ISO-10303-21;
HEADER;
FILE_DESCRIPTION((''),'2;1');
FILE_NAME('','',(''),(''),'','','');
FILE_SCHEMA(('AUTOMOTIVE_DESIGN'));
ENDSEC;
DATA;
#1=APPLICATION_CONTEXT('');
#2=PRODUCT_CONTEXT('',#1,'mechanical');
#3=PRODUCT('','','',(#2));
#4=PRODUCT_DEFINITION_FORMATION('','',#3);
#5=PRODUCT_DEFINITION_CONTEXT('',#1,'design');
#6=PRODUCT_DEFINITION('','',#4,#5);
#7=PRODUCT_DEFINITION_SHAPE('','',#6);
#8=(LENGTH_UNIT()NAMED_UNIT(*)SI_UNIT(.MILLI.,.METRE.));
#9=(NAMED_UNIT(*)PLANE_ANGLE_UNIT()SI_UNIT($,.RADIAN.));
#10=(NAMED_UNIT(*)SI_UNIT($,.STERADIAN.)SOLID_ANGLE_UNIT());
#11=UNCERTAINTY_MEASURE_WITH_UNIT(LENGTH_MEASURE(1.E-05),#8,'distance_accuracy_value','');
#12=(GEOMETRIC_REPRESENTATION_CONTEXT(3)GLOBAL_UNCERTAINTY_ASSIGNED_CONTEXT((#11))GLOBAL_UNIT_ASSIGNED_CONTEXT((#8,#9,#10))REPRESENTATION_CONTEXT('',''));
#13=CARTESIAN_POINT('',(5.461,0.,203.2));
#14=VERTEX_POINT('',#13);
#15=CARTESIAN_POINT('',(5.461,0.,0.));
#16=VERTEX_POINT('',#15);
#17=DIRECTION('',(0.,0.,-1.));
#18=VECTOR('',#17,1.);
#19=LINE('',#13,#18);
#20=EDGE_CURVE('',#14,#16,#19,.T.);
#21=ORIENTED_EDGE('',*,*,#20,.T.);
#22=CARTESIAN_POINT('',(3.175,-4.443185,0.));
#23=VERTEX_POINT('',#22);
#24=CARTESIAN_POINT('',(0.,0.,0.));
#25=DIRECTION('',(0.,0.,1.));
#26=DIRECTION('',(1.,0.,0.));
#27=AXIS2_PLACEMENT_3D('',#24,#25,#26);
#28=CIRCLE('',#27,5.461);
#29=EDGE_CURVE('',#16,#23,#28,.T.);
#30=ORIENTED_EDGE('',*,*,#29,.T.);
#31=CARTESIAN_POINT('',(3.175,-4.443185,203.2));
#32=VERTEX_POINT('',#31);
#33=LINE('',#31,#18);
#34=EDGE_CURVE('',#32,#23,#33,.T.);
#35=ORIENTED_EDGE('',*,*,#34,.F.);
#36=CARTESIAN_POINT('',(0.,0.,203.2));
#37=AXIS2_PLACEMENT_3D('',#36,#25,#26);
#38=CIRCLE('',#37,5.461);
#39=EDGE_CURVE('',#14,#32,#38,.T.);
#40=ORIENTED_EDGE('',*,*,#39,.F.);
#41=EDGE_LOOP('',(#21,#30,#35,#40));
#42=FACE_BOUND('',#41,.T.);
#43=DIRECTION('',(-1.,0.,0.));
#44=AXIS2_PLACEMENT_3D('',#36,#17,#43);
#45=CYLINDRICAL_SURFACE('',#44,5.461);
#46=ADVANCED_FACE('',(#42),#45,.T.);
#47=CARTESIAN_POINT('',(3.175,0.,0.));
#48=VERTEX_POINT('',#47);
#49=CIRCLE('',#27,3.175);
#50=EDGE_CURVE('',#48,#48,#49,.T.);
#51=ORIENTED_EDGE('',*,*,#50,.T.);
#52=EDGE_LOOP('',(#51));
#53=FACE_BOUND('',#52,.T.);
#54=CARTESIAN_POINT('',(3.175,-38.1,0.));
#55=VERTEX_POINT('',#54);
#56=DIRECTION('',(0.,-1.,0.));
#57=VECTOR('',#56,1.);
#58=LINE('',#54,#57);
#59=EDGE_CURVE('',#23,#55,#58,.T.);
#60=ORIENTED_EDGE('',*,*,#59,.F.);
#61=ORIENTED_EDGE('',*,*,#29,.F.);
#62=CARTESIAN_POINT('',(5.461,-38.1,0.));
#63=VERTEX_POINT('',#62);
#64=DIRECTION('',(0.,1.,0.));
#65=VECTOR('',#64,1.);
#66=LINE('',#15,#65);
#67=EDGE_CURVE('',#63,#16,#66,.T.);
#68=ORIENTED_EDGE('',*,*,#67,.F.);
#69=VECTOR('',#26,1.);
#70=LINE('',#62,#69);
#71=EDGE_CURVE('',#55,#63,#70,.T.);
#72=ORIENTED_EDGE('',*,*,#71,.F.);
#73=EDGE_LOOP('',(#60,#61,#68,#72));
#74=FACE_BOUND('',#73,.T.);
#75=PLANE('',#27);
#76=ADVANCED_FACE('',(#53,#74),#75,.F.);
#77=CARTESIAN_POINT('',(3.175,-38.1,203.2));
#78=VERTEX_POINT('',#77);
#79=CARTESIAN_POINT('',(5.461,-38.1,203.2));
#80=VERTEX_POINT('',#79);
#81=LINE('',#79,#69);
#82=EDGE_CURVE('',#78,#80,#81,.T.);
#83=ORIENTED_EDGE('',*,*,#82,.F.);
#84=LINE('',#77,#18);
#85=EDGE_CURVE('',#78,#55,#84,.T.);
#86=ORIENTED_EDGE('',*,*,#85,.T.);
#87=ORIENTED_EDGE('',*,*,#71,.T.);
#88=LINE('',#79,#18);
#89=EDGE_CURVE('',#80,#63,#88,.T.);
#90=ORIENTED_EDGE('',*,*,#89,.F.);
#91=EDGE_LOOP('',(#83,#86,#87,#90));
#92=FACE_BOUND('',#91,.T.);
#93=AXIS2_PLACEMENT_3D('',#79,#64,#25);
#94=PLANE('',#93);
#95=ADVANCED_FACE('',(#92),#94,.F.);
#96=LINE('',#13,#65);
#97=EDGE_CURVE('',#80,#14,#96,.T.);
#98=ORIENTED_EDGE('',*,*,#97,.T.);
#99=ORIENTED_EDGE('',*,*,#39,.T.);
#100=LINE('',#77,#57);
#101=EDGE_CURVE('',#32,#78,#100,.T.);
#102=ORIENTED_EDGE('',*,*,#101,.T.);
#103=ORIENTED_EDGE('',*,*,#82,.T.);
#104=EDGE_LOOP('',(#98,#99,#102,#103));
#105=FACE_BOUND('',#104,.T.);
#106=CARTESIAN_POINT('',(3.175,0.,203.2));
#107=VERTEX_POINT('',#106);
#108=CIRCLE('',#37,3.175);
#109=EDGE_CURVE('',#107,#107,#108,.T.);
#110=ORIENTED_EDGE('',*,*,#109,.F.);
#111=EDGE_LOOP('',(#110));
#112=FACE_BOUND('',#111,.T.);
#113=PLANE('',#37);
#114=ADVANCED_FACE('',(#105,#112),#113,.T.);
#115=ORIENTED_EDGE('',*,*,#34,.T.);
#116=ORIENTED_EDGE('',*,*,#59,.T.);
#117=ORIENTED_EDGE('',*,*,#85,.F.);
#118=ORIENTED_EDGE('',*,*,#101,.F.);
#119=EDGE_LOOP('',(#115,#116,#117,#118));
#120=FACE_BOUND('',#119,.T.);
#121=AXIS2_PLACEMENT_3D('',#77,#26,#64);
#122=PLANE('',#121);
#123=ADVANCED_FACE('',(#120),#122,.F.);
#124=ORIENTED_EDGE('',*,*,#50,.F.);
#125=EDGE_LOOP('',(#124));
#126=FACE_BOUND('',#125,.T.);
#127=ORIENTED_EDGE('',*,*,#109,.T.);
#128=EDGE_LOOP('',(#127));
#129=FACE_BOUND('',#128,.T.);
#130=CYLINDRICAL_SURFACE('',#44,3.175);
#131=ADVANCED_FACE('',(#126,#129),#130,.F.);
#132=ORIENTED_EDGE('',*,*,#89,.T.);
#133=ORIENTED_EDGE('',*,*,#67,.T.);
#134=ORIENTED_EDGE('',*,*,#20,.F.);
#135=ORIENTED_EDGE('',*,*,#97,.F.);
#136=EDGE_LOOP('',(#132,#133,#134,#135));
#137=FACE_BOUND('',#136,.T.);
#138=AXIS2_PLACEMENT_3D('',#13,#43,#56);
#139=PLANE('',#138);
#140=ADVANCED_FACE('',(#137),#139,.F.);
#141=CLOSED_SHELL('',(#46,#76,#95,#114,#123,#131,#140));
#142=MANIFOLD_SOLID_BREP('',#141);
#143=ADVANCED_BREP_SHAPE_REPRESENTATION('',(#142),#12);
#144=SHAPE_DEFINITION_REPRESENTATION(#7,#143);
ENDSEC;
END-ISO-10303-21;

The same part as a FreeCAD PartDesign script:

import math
import FreeCAD as App
import Part
import Sketcher
Q = App.Units.Quantity

doc = App.newDocument("Part")
body = doc.addObject("PartDesign::Body", "Body")

# Sketch on XY plane
sketch1 = doc.addObject("Sketcher::SketchObject", "Sketch")
body.addObject(sketch1)
sketch1.AttachmentSupport = (doc.XY_Plane, [""])
sketch1.MapMode = "FlatFace"
sketch1.addGeometry([
    Part.LineSegment(App.Vector(5.461, -38.1, 0), App.Vector(5.461, 0, 0)),  # 0
    Part.ArcOfCircle(Part.Circle(App.Vector(0, 0, 0), App.Vector(0, 0, 1), 5.461), math.radians(0), math.radians(305.548744)),  # 1
    Part.LineSegment(App.Vector(3.175, -4.443185, 0), App.Vector(3.175, -38.1, 0)),  # 2
    Part.LineSegment(App.Vector(3.175, -38.1, 0), App.Vector(5.461, -38.1, 0)),  # 3
    Part.Circle(App.Vector(0, 0, 0), App.Vector(0, 0, 1), 3.175),  # 4
], False)
sketch1.addConstraint([
    Sketcher.Constraint("Tangent", 0, 2, 1, 1),
    Sketcher.Constraint("Coincident", 1, 2, 2, 1),
    Sketcher.Constraint("Coincident", 2, 2, 3, 1),
    Sketcher.Constraint("Coincident", 3, 2, 0, 1),
    Sketcher.Constraint("Vertical", 0),
    Sketcher.Constraint("Vertical", 2),
    Sketcher.Constraint("Horizontal", 3),
    Sketcher.Constraint("Coincident", 1, 3, -1, 1),
    Sketcher.Constraint("Coincident", 4, 3, -1, 1),
    Sketcher.Constraint("Diameter", 4, Q("0.25 in")),
    Sketcher.Constraint("DistanceY", 0, 1, 0, 2, Q("1.5 in")),
    Sketcher.Constraint("Radius", 1, Q("0.215 in")),
    Sketcher.Constraint("DistanceX", 3, 1, 3, 2, Q("0.09 in")),
])
pad1 = doc.addObject("PartDesign::Pad", "Pad")
body.addObject(pad1)
pad1.Profile = sketch1
pad1.Length = Q("8 in")

doc.recompute()
